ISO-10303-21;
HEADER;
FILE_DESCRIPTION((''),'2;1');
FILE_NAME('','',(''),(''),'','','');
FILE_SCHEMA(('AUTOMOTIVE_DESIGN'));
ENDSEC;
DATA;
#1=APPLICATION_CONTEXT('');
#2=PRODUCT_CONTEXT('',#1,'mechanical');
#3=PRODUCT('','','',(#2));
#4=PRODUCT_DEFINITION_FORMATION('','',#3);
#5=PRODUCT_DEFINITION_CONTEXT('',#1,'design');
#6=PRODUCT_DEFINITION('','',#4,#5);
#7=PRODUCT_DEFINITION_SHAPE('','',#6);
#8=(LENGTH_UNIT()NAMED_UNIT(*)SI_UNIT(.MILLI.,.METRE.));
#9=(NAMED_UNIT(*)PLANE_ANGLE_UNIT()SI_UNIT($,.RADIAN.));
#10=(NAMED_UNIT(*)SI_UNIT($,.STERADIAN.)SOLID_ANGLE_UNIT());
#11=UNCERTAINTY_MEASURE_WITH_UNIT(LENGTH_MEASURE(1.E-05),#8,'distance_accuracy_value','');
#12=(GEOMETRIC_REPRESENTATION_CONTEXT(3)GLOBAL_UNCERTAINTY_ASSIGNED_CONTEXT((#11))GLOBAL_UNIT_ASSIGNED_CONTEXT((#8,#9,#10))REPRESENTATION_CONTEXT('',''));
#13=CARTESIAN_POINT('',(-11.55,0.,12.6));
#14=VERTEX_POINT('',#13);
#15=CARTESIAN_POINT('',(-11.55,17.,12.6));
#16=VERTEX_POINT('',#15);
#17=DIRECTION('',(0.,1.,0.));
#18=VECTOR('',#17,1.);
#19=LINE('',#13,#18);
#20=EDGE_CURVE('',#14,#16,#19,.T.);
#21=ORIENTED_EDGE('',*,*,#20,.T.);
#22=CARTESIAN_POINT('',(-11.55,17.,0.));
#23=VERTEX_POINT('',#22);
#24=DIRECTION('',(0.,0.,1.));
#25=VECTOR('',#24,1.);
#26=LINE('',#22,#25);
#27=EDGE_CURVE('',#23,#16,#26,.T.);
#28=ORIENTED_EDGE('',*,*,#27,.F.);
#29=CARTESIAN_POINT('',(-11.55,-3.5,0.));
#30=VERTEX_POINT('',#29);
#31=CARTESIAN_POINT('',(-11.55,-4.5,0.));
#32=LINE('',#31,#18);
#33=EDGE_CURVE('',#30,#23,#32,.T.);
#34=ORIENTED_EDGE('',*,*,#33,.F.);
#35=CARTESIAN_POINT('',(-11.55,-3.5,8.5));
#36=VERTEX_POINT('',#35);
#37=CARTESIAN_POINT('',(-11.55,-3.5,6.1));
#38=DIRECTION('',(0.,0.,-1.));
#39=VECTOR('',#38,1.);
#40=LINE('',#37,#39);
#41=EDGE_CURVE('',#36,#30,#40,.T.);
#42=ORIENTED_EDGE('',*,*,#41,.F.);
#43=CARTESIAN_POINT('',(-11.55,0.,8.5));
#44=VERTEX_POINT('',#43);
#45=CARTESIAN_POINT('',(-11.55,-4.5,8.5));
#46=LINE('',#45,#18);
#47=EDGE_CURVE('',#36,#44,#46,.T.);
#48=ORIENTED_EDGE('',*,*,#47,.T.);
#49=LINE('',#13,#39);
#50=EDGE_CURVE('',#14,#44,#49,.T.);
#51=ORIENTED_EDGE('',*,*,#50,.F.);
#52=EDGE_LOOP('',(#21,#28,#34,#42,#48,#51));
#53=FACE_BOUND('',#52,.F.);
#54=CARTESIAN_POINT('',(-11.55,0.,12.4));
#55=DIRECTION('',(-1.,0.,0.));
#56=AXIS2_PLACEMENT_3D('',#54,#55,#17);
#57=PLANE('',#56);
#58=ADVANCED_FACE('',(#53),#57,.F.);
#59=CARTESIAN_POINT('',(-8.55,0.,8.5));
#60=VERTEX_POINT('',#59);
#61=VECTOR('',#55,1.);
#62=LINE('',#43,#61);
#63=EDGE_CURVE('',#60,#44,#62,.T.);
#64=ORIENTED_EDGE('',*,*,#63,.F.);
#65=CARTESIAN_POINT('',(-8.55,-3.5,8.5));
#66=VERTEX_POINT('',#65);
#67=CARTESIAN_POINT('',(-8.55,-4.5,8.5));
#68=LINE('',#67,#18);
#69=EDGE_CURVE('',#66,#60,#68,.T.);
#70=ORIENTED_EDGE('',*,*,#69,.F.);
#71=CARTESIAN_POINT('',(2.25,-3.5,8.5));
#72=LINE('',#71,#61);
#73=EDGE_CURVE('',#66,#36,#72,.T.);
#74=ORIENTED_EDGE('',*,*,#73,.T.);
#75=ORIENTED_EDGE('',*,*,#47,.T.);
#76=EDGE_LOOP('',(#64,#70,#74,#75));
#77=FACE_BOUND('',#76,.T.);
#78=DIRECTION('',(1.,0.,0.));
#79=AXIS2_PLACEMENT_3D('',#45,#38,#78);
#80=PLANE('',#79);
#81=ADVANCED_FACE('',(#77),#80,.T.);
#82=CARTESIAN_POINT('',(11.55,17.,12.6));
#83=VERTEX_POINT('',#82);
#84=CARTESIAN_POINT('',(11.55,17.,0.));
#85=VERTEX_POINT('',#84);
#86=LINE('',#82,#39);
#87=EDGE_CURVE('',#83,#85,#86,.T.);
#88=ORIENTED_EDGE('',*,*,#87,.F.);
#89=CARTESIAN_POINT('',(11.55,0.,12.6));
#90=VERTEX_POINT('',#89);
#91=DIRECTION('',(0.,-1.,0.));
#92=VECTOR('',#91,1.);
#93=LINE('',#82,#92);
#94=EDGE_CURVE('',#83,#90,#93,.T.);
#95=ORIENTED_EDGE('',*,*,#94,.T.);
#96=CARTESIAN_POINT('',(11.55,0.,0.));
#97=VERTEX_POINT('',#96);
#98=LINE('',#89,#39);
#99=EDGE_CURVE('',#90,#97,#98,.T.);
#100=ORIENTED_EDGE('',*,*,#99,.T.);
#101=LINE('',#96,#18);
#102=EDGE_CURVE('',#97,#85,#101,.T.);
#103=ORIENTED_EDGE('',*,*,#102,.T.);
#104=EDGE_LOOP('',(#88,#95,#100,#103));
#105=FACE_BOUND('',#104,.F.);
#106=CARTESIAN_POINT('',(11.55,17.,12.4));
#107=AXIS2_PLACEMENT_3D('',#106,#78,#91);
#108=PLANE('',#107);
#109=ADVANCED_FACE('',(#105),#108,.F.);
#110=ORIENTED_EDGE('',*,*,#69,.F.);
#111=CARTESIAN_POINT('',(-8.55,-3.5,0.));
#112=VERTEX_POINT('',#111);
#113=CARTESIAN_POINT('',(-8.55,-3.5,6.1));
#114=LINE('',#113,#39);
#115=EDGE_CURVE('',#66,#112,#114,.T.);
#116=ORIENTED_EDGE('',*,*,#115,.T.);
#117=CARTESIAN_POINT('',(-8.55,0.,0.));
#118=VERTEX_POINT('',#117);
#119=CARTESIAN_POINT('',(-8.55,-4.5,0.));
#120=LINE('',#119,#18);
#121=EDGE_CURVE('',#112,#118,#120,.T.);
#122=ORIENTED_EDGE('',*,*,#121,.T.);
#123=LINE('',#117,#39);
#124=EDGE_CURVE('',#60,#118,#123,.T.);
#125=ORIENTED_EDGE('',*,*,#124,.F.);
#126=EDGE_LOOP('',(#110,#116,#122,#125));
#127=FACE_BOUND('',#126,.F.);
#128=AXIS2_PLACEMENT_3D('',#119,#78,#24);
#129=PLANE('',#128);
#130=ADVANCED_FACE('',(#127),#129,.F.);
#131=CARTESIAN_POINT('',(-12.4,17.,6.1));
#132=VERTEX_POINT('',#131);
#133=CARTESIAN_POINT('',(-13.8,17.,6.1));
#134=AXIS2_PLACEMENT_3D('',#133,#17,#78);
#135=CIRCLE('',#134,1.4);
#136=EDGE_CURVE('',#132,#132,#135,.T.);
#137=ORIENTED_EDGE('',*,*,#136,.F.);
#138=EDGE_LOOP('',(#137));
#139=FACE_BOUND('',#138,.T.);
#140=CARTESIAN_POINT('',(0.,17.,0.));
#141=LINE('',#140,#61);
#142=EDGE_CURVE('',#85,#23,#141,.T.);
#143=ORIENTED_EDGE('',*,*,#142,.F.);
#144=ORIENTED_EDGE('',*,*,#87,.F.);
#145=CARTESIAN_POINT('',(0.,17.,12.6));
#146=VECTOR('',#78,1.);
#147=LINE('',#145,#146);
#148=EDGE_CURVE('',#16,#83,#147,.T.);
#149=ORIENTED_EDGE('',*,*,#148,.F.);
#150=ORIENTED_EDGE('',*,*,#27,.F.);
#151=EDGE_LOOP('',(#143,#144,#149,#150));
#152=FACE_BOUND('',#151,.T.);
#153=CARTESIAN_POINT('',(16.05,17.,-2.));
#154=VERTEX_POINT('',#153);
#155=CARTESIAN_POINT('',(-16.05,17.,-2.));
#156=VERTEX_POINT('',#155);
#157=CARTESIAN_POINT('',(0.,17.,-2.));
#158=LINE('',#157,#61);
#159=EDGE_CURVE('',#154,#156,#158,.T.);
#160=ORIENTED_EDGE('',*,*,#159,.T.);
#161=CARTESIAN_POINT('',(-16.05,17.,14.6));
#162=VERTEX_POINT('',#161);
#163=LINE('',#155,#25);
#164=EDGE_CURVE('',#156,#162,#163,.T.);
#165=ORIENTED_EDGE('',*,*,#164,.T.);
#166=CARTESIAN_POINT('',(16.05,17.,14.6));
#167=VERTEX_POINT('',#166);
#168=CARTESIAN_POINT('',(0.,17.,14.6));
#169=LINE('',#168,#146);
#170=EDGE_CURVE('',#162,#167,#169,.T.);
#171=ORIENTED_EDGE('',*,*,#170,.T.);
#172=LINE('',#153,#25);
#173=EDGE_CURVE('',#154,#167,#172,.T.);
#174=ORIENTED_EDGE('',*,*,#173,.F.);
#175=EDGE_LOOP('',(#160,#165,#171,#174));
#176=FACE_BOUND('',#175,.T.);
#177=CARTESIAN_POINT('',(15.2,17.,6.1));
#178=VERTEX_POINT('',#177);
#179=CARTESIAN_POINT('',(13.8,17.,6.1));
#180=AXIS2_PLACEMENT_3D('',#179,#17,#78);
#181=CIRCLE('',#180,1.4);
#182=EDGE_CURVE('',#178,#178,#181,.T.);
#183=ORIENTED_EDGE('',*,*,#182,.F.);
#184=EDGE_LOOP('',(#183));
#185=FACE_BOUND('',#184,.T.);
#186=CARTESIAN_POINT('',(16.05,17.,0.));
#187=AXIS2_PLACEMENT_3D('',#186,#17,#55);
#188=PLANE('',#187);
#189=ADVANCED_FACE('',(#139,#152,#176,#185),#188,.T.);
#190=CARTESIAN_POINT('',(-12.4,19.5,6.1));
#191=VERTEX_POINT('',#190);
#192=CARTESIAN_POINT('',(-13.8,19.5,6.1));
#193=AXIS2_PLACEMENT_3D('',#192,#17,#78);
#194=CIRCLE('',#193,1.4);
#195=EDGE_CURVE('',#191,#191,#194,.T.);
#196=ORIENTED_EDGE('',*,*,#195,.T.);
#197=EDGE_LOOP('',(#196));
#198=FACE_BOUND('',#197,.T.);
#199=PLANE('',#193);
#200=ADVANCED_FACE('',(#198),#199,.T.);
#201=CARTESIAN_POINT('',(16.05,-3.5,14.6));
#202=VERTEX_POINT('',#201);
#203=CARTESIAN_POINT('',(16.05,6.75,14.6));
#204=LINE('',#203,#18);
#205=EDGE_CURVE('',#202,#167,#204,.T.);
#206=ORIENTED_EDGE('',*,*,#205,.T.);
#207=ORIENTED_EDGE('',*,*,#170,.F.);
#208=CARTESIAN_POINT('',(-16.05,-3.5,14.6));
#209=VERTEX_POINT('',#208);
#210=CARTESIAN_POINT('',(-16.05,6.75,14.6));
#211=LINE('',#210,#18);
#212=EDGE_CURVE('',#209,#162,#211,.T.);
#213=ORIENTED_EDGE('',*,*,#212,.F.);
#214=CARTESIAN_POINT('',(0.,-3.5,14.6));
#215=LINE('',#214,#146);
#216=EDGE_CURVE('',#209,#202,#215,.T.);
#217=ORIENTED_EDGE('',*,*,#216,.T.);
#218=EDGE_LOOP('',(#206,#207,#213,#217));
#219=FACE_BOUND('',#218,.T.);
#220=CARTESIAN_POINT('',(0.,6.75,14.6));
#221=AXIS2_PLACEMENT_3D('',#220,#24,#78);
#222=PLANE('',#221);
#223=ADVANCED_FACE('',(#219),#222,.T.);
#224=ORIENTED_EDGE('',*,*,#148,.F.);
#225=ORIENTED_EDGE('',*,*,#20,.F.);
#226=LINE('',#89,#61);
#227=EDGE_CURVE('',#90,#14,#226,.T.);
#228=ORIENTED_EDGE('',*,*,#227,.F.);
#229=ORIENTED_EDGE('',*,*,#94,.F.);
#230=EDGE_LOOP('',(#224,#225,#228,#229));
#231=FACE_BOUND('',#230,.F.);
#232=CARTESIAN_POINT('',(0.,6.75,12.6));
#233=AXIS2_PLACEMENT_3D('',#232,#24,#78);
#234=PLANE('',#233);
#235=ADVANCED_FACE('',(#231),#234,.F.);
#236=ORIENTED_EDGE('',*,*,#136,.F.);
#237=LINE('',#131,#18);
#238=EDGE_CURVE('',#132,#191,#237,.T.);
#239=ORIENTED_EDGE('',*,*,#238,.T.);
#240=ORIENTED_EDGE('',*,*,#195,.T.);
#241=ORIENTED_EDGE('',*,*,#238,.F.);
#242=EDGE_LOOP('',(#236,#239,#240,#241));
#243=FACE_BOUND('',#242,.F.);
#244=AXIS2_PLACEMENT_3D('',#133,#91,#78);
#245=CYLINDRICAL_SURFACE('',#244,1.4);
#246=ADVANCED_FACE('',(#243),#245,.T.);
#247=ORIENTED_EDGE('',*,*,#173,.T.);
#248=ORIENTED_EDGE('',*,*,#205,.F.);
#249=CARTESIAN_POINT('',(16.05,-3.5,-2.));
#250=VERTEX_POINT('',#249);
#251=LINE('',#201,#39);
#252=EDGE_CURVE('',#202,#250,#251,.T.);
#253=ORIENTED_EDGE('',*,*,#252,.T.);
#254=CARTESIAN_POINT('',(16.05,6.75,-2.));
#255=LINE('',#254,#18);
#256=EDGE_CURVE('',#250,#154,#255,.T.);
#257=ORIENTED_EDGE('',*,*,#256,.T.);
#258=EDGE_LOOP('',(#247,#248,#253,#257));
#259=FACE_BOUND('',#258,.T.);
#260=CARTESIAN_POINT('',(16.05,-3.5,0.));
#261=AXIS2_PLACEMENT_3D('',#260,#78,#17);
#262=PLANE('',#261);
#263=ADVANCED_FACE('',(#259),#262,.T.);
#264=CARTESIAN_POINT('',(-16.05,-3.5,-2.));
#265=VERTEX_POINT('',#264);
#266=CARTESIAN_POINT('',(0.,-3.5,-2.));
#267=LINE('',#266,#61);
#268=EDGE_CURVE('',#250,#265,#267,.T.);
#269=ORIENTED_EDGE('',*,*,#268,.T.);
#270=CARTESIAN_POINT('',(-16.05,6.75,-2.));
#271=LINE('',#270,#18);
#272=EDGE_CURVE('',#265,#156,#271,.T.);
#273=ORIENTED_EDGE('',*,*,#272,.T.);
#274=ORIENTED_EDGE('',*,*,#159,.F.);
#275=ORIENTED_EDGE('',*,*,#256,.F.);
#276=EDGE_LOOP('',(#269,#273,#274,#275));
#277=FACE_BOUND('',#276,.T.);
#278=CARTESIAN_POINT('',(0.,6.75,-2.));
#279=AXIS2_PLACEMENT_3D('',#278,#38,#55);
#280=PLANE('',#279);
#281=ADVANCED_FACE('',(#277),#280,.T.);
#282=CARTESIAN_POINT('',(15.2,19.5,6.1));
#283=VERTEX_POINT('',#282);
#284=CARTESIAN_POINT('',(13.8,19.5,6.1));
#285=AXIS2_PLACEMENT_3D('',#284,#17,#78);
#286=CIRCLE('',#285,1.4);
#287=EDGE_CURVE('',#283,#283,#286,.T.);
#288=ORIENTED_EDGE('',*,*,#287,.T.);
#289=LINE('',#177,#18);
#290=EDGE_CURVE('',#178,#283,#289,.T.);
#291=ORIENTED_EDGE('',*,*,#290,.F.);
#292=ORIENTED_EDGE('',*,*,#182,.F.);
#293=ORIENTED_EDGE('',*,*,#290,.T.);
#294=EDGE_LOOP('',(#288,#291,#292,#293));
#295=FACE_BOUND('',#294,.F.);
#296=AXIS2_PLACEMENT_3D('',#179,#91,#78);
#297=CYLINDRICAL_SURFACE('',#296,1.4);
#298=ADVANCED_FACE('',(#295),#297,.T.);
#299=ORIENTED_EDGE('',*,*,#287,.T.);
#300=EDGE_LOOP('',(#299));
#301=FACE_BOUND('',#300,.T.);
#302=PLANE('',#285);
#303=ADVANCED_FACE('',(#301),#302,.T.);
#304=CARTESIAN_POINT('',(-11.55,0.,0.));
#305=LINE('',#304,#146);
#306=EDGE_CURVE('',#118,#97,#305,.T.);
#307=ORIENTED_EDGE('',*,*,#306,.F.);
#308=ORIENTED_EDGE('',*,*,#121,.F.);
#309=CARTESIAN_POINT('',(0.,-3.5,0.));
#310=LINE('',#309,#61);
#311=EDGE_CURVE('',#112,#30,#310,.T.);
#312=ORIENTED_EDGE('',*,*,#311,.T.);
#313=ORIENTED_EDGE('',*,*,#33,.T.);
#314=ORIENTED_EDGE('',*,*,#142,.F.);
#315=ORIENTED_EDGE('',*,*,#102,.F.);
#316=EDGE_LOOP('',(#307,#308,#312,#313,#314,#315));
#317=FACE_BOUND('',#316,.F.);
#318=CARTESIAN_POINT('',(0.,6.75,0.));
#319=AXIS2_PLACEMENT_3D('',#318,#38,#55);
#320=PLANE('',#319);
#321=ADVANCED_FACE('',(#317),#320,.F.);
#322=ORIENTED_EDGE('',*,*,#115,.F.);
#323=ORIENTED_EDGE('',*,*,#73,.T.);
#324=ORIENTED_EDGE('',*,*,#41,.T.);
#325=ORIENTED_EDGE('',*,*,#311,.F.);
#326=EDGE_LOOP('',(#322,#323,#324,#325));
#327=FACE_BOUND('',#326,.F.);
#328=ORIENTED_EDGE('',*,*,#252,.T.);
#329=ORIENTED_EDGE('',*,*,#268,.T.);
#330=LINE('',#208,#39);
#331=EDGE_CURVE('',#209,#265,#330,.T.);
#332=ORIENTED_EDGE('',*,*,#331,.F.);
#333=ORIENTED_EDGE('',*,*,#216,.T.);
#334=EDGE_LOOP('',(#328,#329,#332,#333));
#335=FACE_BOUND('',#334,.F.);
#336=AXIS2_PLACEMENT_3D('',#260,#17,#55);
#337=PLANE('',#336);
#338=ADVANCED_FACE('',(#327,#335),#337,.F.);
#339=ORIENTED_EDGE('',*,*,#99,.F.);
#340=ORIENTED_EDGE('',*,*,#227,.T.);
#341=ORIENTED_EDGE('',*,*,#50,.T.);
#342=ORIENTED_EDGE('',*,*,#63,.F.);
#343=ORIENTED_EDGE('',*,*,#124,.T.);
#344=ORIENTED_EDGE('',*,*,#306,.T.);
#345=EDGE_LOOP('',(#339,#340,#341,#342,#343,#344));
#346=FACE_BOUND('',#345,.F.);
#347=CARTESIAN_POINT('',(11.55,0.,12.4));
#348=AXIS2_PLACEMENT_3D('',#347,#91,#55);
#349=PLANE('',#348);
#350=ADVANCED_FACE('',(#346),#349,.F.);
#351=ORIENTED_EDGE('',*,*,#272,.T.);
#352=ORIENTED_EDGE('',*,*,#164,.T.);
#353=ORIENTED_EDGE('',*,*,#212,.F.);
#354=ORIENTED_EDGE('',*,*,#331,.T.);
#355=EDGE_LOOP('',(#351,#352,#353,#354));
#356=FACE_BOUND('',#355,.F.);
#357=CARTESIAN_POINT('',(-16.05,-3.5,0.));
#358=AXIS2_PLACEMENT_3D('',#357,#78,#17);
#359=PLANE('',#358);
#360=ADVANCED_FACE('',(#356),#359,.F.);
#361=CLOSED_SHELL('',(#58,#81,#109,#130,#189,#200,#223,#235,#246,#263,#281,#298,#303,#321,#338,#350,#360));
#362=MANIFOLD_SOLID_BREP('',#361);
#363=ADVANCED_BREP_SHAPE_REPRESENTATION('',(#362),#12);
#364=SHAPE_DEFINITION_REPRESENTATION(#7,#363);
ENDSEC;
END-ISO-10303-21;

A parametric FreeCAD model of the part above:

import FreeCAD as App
import Part
import Sketcher


def add_polygon(sketch, points):
    """Adds a closed chain of lines whose ends are joined by coincident constraints."""
    first, n = sketch.GeometryCount, len(points)
    for a, b in zip(points, points[1:] + points[:1]):
        sketch.addGeometry(Part.LineSegment(App.Vector(*a, 0), App.Vector(*b, 0)), False)
    for i in range(n):
        sketch.addConstraint(Sketcher.Constraint("Coincident", first + i, 2, first + (i + 1) % n, 1))

doc = App.newDocument("Part")
body = doc.addObject("PartDesign::Body", "Body")

sketch1 = body.newObject("Sketcher::SketchObject", "Sketch")
sketch1.AttachmentSupport = (doc.getObject("XY_Plane"), [""])
sketch1.MapMode = "FlatFace"
add_polygon(sketch1, [(11.6, 0), (-11.6, 0), (-11.6, 17), (-16.1, 17), (-16.1, -4.5), (16.1, -4.5), (16.1, 17), (11.6, 17)])
sketch1.addConstraint([
    Sketcher.Constraint("Horizontal", 0),
    Sketcher.Constraint("Vertical", 1),
    Sketcher.Constraint("Horizontal", 2),
    Sketcher.Constraint("Vertical", 3),
    Sketcher.Constraint("Horizontal", 4),
    Sketcher.Constraint("Vertical", 5),
    Sketcher.Constraint("Horizontal", 6),
    Sketcher.Constraint("Vertical", 7),
    Sketcher.Constraint("Symmetric", 0, 2, 7, 2, -1, 1),
    Sketcher.Constraint("Symmetric", 2, 2, 5, 2, -2),
    Sketcher.Constraint("DistanceY", 1, 1, 1, 2, 17.0),
    Sketcher.Constraint("DistanceX", 0, 2, 0, 1, 23.1),
    Sketcher.Constraint("DistanceX", 2, 2, 2, 1, 4.5),
    Sketcher.Constraint("DistanceY", 3, 2, 3, 1, 21.5),
])
pad1 = body.newObject("PartDesign::Pad", "Pad")
pad1.Profile = sketch1
pad1.Length = 12.2

sketch2 = body.newObject("Sketcher::SketchObject", "Sketch001")
sketch2.AttachmentSupport = (doc.getObject("XZ_Plane"), [""])
sketch2.MapMode = "FlatFace"
sketch2.AttachmentOffset = App.Placement(App.Vector(0, 0, 4.5), App.Rotation())
add_polygon(sketch2, [(-11.6, 8.5), (-11.6, 0), (-8.6, 0), (-8.6, 8.5)])
sketch2.addConstraint([
    Sketcher.Constraint("Vertical", 0),
    Sketcher.Constraint("Horizontal", 1),
    Sketcher.Constraint("Vertical", 2),
    Sketcher.Constraint("Horizontal", 3),
    Sketcher.Constraint("PointOnObject", 0, 2, -1),
    Sketcher.Constraint("DistanceX", 1, 1, 1, 2, 3.0),
    Sketcher.Constraint("DistanceY", 0, 2, 0, 1, 8.5),
    Sketcher.Constraint("DistanceX", 0, 2, -1, 1, 11.55),
])
pocket1 = body.newObject("PartDesign::Pocket", "Pocket")
pocket1.Profile = sketch2
pocket1.Type = "ThroughAll"

sketch3 = body.newObject("Sketcher::SketchObject", "Sketch002")
sketch3.AttachmentSupport = (doc.getObject("XZ_Plane"), [""])
sketch3.MapMode = "FlatFace"
sketch3.AttachmentOffset = App.Placement(App.Vector(0, 0, -17), App.Rotation())
sketch3.addGeometry([
    Part.Circle(App.Vector(13.8, 6.1, 0), App.Vector(0, 0, 1), 1.4),
    Part.Circle(App.Vector(-13.8, 6.1, 0), App.Vector(0, 0, 1), 1.4),
], False)
sketch3.addConstraint([
    Sketcher.Constraint("Equal", 0, 1),
    Sketcher.Constraint("Symmetric", 0, 3, 1, 3, -2),
    Sketcher.Constraint("Diameter", 0, 2.8),
    Sketcher.Constraint("DistanceX", -1, 1, 0, 3, 13.8),
    Sketcher.Constraint("DistanceY", -1, 1, 0, 3, 6.1),
])
pad2 = body.newObject("PartDesign::Pad", "Pad001")
pad2.Profile = sketch3
pad2.Length = 2.5
pad2.Reversed = True

sketch4 = body.newObject("Sketcher::SketchObject", "Sketch003")
sketch4.AttachmentSupport = (doc.getObject("YZ_Plane"), [""])
sketch4.MapMode = "FlatFace"
sketch4.AttachmentOffset = App.Placement(App.Vector(0, 0, 16.05), App.Rotation())
add_polygon(sketch4, [(-3.5, 12.2), (-4.5, 12.2), (-4.5, 0), (-3.5, 0)])
sketch4.addConstraint([
    Sketcher.Constraint("Horizontal", 0),
    Sketcher.Constraint("Vertical", 1),
    Sketcher.Constraint("Horizontal", 2),
    Sketcher.Constraint("Vertical", 3),
    Sketcher.Constraint("PointOnObject", 1, 2, -1),
    Sketcher.Constraint("DistanceX", 0, 2, 0, 1, 1.0),
    Sketcher.Constraint("DistanceY", 1, 2, 1, 1, 12.2),
    Sketcher.Constraint("DistanceX", 0, 2, -1, 1, 4.5),
])
pocket2 = body.newObject("PartDesign::Pocket", "Pocket001")
pocket2.Profile = sketch4
pocket2.Type = "ThroughAll"
pocket2.Midplane = True

sketch5 = body.newObject("Sketcher::SketchObject", "Sketch004")
sketch5.AttachmentSupport = (doc.getObject("XY_Plane"), [""])
sketch5.MapMode = "FlatFace"
sketch5.AttachmentOffset = App.Placement(App.Vector(0, 0, 12.2), App.Rotation())
add_polygon(sketch5, [(-11.6, 17), (-16.1, 17), (-16.1, -3.5), (16.1, -3.5), (16.1, 17), (11.6, 17), (11.6, 0), (-11.6, 0)])
sketch5.addConstraint([
    Sketcher.Constraint("Horizontal", 0),
    Sketcher.Constraint("Vertical", 1),
    Sketcher.Constraint("Horizontal", 2),
    Sketcher.Constraint("Vertical", 3),
    Sketcher.Constraint("Horizontal", 4),
    Sketcher.Constraint("Vertical", 5),
    Sketcher.Constraint("Horizontal", 6),
    Sketcher.Constraint("Vertical", 7),
    Sketcher.Constraint("Symmetric", 5, 2, 6, 2, -1, 1),
    Sketcher.Constraint("Symmetric", 0, 2, 3, 2, -2),
    Sketcher.Constraint("DistanceY", 5, 2, 5, 1, 17.0),
    Sketcher.Constraint("DistanceX", 0, 2, 0, 1, 4.5),
    Sketcher.Constraint("DistanceX", 2, 1, 2, 2, 32.1),
    Sketcher.Constraint("DistanceY", 1, 2, 1, 1, 20.5),
])
pad3 = body.newObject("PartDesign::Pad", "Pad002")
pad3.Profile = sketch5
pad3.Length = 0.2

sketch6 = body.newObject("Sketcher::SketchObject", "Sketch005")
sketch6.AttachmentSupport = (doc.getObject("XY_Plane"), [""])
sketch6.MapMode = "FlatFace"
sketch6.AttachmentOffset = App.Placement(App.Vector(0, 0, 12.4), App.Rotation())
add_polygon(sketch6, [(-11.6, 0), (-11.6, 17), (-16.1, 17), (-16.1, -3.5), (16.1, -3.5), (16.1, 17), (11.6, 17), (11.6, 0)])
sketch6.addConstraint([
    Sketcher.Constraint("Vertical", 0),
    Sketcher.Constraint("Horizontal", 1),
    Sketcher.Constraint("Vertical", 2),
    Sketcher.Constraint("Horizontal", 3),
    Sketcher.Constraint("Vertical", 4),
    Sketcher.Constraint("Horizontal", 5),
    Sketcher.Constraint("Vertical", 6),
    Sketcher.Constraint("Horizontal", 7),
    Sketcher.Constraint("Symmetric", 6, 2, 7, 2, -1, 1),
    Sketcher.Constraint("Symmetric", 1, 2, 4, 2, -2),
    Sketcher.Constraint("DistanceY", 0, 1, 0, 2, 17.0),
    Sketcher.Constraint("DistanceX", 1, 2, 1, 1, 4.5),
    Sketcher.Constraint("DistanceX", 3, 1, 3, 2, 32.1),
    Sketcher.Constraint("DistanceY", 2, 2, 2, 1, 20.5),
])
pad4 = body.newObject("PartDesign::Pad", "Pad003")
pad4.Profile = sketch6
pad4.Length = 0.2

sketch7 = body.newObject("Sketcher::SketchObject", "Sketch006")
sketch7.AttachmentSupport = (doc.getObject("XY_Plane"), [""])
sketch7.MapMode = "FlatFace"
sketch7.AttachmentOffset = App.Placement(App.Vector(0, 0, 12.6), App.Rotation())
add_polygon(sketch7, [(-16, 17), (-16, -4), (16, -4), (16, 17)])
sketch7.addConstraint([
    Sketcher.Constraint("Vertical", 0),
    Sketcher.Constraint("Horizontal", 1),
    Sketcher.Constraint("Vertical", 2),
    Sketcher.Constraint("Horizontal", 3),
    Sketcher.Constraint("DistanceX", 1, 1, 1, 2, 32.1),
    Sketcher.Constraint("DistanceY", 0, 2, 0, 1, 20.5),
    Sketcher.Constraint("DistanceY", -1, 1, 2, 2, 17.0),
    Sketcher.Constraint("DistanceX", 0, 2, -1, 1, 16.05),
])
pad5 = body.newObject("PartDesign::Pad", "Pad004")
pad5.Profile = sketch7
pad5.Length = 2

sketch8 = body.newObject("Sketcher::SketchObject", "Sketch007")
sketch8.AttachmentSupport = (doc.getObject("XY_Plane"), [""])
sketch8.MapMode = "FlatFace"
add_polygon(sketch8, [(16, 17), (16, -4), (-16, -4), (-16, 17)])
sketch8.addConstraint([
    Sketcher.Constraint("Vertical", 0),
    Sketcher.Constraint("Horizontal", 1),
    Sketcher.Constraint("Vertical", 2),
    Sketcher.Constraint("Horizontal", 3),
    Sketcher.Constraint("DistanceX", 1, 2, 1, 1, 32.1),
    Sketcher.Constraint("DistanceY", 0, 2, 0, 1, 20.5),
    Sketcher.Constraint("DistanceY", -1, 1, 2, 2, 17.0),
    Sketcher.Constraint("DistanceX", -1, 1, 0, 2, 16.05),
])
pad6 = body.newObject("PartDesign::Pad", "Pad005")
pad6.Profile = sketch8
pad6.Length = 2
pad6.Reversed = True

doc.recompute()
